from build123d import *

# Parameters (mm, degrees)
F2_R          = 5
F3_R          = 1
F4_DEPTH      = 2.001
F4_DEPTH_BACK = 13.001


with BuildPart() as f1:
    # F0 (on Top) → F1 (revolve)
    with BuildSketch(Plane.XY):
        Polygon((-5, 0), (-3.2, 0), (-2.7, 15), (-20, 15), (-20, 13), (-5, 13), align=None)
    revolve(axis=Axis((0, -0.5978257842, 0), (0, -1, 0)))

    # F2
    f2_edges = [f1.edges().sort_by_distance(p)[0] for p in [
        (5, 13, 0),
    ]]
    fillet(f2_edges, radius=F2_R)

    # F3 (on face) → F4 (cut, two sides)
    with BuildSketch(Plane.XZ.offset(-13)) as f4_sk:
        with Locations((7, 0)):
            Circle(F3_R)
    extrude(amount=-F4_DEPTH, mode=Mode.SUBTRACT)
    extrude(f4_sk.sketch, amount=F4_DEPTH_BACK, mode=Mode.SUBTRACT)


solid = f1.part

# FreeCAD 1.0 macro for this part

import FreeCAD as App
import Part
import Sketcher
Q = App.Units.Quantity


def edges_at(feature, points):
    """Names of the edges that pass closest to the given points."""
    edges = feature.Shape.Edges
    near = lambda p: min(range(len(edges)), key=lambda i: edges[i].distToShape(Part.Vertex(*p))[0])
    return sorted({f"Edge{near(p) + 1}" for p in points})

doc = App.newDocument("Part")
body = doc.addObject("PartDesign::Body", "Body")

# Sketch on XY plane
sketch1 = body.newObject("Sketcher::SketchObject", "Sketch")
sketch1.AttachmentSupport = (doc.getObject("XY_Plane"), [""])
sketch1.MapMode = "FlatFace"
sketch1.addGeometry([
    Part.LineSegment(App.Vector(-5, 0, 0), App.Vector(-3.2, 0, 0)),  # 0
    Part.LineSegment(App.Vector(-3.2, 0, 0), App.Vector(-2.7, 15, 0)),  # 1
    Part.LineSegment(App.Vector(-2.7, 15, 0), App.Vector(-20, 15, 0)),  # 2
    Part.LineSegment(App.Vector(-20, 15, 0), App.Vector(-20, 13, 0)),  # 3
    Part.LineSegment(App.Vector(-20, 13, 0), App.Vector(-5, 13, 0)),  # 4
    Part.LineSegment(App.Vector(-5, 13, 0), App.Vector(-5, 0, 0)),  # 5
], False)
sketch1.addConstraint([
    Sketcher.Constraint("Coincident", 0, 2, 1, 1),
    Sketcher.Constraint("Coincident", 1, 2, 2, 1),
    Sketcher.Constraint("Coincident", 2, 2, 3, 1),
    Sketcher.Constraint("Coincident", 3, 2, 4, 1),
    Sketcher.Constraint("Coincident", 4, 2, 5, 1),
    Sketcher.Constraint("Coincident", 5, 2, 0, 1),
    Sketcher.Constraint("Horizontal", 0),
    Sketcher.Constraint("Horizontal", 2),
    Sketcher.Constraint("Vertical", 3),
    Sketcher.Constraint("Horizontal", 4),
    Sketcher.Constraint("Vertical", 5),
    Sketcher.Constraint("PointOnObject", 0, 2, -1),
    Sketcher.Constraint("DistanceX", 4, 1, 4, 2, Q("15 mm")),
    Sketcher.Constraint("DistanceY", 3, 2, 3, 1, Q("2 mm")),
    Sketcher.Constraint("DistanceY", 5, 2, 5, 1, Q("13 mm")),
    Sketcher.Constraint("DistanceX", 0, 1, 0, 2, Q("1.8 mm")),
    Sketcher.Constraint("DistanceX", 2, 2, 2, 1, Q("17.3 mm")),
    Sketcher.Constraint("DistanceX", 2, 2, -1, 1, Q("20 mm")),
])
revolution = body.newObject("PartDesign::Revolution", "Revolution")
revolution.Profile = sketch1
revolution.ReferenceAxis = (sketch1, ["V_Axis"])
revolution.Angle = 360
doc.recompute()

fillet = body.newObject("PartDesign::Fillet", "Fillet")
fillet.Base = (revolution, edges_at(revolution, [(5, 13, 0)]))
fillet.Radius = 5

# Sketch on XZ plane
sketch2 = body.newObject("Sketcher::SketchObject", "Sketch001")
sketch2.AttachmentSupport = (doc.getObject("XZ_Plane"), [""])
sketch2.MapMode = "FlatFace"
sketch2.AttachmentOffset = App.Placement(App.Vector(0, 0, -13), App.Rotation())
sketch2.addGeometry(Part.Circle(App.Vector(7, 0, 0), App.Vector(0, 0, 1), 1), False)
sketch2.addConstraint([
    Sketcher.Constraint("PointOnObject", 0, 3, -1),
    Sketcher.Constraint("Diameter", 0, Q("2 mm")),
    Sketcher.Constraint("DistanceX", -1, 1, 0, 3, Q("7 mm")),
])
pocket1 = body.newObject("PartDesign::Pocket", "Pocket")
pocket1.Profile = sketch2
pocket1.Type = "ThroughAll"
pocket1.Midplane = True

doc.recompute()
